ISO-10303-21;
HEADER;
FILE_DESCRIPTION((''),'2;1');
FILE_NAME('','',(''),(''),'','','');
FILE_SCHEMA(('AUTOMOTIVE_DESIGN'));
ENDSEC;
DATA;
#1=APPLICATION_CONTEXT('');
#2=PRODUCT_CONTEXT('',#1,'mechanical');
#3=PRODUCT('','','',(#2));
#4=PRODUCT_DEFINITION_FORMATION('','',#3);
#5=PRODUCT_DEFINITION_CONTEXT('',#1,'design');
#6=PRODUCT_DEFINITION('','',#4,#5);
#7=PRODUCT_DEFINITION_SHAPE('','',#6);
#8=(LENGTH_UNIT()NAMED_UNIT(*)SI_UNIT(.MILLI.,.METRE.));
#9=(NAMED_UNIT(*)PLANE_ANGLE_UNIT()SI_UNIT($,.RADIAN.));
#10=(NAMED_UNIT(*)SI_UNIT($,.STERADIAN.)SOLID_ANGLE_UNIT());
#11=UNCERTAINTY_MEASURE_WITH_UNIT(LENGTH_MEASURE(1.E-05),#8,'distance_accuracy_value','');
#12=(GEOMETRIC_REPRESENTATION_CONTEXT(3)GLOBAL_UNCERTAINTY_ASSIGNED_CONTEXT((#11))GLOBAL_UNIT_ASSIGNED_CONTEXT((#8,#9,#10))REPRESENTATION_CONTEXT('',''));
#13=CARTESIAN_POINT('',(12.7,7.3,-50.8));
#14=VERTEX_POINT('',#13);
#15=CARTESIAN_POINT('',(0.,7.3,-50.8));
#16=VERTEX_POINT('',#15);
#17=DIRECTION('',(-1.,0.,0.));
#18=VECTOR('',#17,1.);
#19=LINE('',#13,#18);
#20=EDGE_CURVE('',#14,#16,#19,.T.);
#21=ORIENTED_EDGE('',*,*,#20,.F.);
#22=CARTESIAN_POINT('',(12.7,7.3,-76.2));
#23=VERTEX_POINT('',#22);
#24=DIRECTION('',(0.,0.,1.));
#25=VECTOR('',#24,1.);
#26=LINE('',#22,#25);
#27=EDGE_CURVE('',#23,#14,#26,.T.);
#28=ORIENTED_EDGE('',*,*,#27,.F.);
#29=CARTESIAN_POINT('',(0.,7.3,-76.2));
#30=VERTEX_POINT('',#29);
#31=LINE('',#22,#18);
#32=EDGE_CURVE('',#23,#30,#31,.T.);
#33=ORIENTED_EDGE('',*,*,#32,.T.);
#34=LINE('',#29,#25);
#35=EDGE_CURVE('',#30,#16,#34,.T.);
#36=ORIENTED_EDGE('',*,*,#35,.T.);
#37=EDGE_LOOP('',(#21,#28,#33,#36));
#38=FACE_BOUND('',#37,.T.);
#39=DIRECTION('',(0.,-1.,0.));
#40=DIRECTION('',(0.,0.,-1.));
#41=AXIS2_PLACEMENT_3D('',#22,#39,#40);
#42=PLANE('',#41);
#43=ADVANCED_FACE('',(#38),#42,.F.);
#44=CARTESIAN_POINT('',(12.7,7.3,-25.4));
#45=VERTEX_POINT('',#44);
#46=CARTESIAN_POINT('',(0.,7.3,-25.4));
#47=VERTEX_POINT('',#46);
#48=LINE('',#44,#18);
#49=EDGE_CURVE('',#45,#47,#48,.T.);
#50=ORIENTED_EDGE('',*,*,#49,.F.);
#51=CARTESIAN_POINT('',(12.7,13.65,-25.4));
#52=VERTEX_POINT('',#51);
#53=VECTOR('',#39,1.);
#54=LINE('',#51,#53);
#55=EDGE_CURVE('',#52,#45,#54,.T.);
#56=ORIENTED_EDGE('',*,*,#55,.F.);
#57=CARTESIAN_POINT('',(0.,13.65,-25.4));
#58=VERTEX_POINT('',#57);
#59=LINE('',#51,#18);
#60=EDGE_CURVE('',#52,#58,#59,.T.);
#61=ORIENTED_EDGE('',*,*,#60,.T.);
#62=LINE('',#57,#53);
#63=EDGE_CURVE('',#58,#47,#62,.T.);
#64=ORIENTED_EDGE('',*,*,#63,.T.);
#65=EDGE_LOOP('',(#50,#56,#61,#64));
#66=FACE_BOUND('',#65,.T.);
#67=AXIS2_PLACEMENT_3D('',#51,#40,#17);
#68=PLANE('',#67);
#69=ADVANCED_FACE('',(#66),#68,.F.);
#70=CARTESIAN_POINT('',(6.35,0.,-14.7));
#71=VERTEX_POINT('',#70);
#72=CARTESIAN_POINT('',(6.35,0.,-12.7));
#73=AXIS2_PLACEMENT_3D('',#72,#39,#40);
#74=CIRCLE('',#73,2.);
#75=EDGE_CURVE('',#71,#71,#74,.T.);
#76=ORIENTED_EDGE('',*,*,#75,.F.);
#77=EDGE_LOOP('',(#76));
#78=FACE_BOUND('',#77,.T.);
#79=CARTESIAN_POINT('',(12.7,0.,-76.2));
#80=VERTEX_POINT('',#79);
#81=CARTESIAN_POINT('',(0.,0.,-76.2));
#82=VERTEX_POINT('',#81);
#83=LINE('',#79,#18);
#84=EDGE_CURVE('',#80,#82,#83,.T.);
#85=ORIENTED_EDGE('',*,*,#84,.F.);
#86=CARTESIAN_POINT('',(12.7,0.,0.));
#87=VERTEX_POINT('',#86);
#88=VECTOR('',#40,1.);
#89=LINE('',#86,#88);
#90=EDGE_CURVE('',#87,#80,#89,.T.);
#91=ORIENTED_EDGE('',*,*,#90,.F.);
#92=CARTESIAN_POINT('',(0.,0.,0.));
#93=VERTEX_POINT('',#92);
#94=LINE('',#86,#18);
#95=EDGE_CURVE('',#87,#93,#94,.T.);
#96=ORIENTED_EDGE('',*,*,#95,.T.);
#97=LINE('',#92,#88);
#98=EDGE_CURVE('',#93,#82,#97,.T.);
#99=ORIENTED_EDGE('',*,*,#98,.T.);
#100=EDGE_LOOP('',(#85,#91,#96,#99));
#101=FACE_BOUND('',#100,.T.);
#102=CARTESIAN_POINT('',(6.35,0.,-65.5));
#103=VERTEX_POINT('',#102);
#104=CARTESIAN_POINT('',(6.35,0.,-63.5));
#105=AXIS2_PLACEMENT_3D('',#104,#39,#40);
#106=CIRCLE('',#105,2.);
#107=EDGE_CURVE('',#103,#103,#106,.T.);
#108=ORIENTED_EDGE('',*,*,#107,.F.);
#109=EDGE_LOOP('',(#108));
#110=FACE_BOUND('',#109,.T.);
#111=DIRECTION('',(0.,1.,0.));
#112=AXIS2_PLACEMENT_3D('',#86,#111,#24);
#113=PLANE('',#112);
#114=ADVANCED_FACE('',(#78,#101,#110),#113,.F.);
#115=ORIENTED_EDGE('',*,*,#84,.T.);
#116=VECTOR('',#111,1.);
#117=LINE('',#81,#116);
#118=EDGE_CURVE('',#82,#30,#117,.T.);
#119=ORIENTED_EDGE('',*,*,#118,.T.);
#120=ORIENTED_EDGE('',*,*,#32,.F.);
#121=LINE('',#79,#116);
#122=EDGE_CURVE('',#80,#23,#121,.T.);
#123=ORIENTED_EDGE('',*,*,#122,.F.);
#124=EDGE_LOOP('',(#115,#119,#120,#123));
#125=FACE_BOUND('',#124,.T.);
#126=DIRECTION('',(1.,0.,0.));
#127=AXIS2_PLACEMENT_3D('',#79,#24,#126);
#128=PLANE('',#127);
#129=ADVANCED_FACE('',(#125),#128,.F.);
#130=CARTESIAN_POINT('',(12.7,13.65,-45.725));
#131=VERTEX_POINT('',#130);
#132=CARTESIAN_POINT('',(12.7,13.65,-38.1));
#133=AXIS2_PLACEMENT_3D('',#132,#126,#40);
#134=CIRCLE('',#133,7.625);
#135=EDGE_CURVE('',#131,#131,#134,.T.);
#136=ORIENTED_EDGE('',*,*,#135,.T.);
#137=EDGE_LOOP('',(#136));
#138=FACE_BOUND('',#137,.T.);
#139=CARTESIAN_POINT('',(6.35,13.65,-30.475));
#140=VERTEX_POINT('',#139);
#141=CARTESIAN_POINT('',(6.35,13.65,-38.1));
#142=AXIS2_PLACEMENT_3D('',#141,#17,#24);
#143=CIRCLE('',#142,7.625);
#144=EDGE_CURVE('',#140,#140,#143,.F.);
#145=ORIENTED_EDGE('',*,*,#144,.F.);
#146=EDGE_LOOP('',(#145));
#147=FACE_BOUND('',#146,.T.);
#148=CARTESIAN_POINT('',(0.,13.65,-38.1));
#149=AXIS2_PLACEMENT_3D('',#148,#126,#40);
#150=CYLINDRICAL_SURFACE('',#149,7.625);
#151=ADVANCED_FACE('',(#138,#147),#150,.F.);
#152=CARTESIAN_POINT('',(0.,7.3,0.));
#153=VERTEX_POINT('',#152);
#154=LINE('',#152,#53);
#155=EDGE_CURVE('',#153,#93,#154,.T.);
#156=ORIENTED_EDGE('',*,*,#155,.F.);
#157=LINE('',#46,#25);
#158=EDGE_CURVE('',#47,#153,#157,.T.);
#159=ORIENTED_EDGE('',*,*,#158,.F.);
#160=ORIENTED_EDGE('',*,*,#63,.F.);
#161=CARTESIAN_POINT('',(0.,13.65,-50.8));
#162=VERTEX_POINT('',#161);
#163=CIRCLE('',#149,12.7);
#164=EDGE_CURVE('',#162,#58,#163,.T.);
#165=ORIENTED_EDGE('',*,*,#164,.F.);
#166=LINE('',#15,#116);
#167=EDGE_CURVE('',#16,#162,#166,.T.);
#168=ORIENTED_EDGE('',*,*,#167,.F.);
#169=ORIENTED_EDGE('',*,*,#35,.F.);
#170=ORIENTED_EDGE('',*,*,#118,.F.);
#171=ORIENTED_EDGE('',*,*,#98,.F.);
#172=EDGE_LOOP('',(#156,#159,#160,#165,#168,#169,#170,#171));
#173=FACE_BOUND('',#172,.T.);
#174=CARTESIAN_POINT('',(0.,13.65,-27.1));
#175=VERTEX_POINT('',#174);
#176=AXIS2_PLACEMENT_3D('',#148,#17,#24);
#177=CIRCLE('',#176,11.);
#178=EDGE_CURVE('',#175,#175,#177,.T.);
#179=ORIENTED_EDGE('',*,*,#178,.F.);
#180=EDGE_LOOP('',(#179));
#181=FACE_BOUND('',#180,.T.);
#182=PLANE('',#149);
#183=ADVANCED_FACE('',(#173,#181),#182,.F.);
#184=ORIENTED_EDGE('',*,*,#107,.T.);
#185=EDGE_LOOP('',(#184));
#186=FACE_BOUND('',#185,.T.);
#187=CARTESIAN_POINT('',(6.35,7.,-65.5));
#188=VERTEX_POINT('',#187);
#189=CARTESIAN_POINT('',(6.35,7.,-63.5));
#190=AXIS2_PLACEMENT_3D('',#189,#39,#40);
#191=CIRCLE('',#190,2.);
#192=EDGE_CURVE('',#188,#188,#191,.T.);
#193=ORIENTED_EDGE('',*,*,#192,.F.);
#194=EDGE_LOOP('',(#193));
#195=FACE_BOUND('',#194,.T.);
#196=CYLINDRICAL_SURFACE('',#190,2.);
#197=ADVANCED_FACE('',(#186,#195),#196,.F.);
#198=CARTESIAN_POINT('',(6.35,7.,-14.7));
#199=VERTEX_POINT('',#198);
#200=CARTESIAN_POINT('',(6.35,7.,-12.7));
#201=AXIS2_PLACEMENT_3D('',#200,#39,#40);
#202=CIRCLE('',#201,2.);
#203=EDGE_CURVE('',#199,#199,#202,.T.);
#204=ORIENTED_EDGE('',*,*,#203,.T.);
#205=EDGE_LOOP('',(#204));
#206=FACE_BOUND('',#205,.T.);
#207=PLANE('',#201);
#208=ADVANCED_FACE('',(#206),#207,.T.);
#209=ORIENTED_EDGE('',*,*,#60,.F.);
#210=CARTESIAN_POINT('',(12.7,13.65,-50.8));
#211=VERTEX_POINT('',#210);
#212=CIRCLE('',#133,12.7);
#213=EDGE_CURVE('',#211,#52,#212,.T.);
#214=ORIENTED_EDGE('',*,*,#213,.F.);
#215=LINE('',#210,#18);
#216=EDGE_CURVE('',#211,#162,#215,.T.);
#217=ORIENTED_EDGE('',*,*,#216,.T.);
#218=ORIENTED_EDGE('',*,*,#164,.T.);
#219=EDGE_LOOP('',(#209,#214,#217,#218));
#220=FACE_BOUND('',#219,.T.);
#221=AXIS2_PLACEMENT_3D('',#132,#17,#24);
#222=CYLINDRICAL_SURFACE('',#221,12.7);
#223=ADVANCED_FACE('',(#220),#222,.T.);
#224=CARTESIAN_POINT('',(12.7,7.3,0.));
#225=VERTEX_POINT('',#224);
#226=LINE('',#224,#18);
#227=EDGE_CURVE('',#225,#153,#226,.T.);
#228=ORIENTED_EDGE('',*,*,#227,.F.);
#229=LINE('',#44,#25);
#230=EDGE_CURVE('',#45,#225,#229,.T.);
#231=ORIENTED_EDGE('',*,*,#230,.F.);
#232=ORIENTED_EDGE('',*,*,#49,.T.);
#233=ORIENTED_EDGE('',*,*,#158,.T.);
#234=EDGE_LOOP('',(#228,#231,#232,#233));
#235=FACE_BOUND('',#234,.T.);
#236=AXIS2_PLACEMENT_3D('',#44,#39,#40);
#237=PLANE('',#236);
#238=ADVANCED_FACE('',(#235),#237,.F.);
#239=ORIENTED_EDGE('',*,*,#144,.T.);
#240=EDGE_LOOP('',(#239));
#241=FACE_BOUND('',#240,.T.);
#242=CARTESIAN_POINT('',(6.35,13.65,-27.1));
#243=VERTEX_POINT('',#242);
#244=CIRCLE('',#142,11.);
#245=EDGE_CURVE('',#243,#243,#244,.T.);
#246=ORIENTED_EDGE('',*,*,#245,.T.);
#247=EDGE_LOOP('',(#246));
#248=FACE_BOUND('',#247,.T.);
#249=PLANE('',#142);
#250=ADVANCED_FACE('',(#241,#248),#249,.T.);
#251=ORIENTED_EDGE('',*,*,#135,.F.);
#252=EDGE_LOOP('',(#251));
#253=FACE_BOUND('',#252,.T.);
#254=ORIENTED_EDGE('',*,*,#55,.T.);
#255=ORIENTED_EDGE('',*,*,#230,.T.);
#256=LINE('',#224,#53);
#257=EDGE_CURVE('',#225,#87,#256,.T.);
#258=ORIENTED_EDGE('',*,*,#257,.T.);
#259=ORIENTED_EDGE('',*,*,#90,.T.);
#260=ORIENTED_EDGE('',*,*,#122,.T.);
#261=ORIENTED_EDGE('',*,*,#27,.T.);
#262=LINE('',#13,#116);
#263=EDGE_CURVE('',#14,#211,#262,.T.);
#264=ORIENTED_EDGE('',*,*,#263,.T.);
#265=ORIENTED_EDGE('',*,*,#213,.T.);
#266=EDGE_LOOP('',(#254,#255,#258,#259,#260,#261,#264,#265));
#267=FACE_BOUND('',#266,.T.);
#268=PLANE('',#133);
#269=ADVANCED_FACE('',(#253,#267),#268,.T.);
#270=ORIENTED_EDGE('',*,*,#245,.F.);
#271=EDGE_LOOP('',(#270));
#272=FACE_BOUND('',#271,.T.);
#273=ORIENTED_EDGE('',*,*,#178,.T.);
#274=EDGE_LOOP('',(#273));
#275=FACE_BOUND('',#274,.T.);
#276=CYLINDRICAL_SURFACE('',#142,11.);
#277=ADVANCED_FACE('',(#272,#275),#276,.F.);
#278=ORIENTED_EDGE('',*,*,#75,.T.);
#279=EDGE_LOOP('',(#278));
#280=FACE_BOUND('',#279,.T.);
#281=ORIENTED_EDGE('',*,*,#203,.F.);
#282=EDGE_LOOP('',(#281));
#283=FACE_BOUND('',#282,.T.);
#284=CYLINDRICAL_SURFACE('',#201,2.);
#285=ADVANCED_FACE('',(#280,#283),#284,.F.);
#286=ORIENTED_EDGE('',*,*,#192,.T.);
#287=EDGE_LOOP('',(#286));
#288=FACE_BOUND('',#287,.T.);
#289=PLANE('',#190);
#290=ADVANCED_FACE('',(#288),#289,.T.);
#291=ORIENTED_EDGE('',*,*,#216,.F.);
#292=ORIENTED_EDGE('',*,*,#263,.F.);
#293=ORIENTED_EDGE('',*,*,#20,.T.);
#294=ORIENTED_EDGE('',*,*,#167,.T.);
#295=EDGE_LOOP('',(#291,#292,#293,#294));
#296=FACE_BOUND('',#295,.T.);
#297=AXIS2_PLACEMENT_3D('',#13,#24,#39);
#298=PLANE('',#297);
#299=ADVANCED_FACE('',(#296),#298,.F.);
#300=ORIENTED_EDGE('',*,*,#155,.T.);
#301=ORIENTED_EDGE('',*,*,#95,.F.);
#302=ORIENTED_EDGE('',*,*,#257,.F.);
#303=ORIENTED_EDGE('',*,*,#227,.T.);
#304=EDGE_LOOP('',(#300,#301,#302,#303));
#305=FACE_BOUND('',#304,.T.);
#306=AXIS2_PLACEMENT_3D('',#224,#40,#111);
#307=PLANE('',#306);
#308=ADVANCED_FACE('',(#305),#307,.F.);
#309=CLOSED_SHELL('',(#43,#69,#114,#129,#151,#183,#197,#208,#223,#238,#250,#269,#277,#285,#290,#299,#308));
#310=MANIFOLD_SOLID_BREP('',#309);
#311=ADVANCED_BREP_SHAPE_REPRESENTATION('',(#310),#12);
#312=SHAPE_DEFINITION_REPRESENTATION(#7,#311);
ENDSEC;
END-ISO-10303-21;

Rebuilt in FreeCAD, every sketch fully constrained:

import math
import FreeCAD as App
import Part
import Sketcher

doc = App.newDocument("Part")
body = doc.addObject("PartDesign::Body", "Body")

sketch1 = body.newObject("Sketcher::SketchObject", "Sketch")
sketch1.AttachmentSupport = (doc.getObject("YZ_Plane"), [""])
sketch1.MapMode = "FlatFace"
sketch1.addGeometry(Part.LineSegment(App.Vector(0, 0, 0), App.Vector(0, -76, 0)), False)
sketch1.addGeometry(Part.LineSegment(App.Vector(0, -76, 0), App.Vector(7, -76, 0)), False)
sketch1.addGeometry(Part.LineSegment(App.Vector(7, -76, 0), App.Vector(7, -51, 0)), False)
sketch1.addGeometry(Part.LineSegment(App.Vector(7, -51, 0), App.Vector(14, -51, 0)), False)
sketch1.addGeometry(Part.ArcOfCircle(Part.Circle(App.Vector(14, -38, 0), App.Vector(0, 0, 1), 13), math.radians(-90), math.radians(90)), False)
sketch1.addGeometry(Part.LineSegment(App.Vector(14, -25, 0), App.Vector(7, -25, 0)), False)
sketch1.addGeometry(Part.LineSegment(App.Vector(7, -25, 0), App.Vector(7, 0, 0)), False)
sketch1.addGeometry(Part.LineSegment(App.Vector(7, 0, 0), App.Vector(0, 0, 0)), False)
sketch1.addConstraint(Sketcher.Constraint("Coincident", 0, 2, 1, 1))
sketch1.addConstraint(Sketcher.Constraint("Coincident", 1, 2, 2, 1))
sketch1.addConstraint(Sketcher.Constraint("Coincident", 2, 2, 3, 1))
sketch1.addConstraint(Sketcher.Constraint("Tangent", 3, 2, 4, 1))
sketch1.addConstraint(Sketcher.Constraint("Tangent", 4, 2, 5, 1))
sketch1.addConstraint(Sketcher.Constraint("Coincident", 5, 2, 6, 1))
sketch1.addConstraint(Sketcher.Constraint("Coincident", 6, 2, 7, 1))
sketch1.addConstraint(Sketcher.Constraint("Coincident", 7, 2, 0, 1))
sketch1.addConstraint(Sketcher.Constraint("Vertical", 0))
sketch1.addConstraint(Sketcher.Constraint("Horizontal", 1))
sketch1.addConstraint(Sketcher.Constraint("Vertical", 2))
sketch1.addConstraint(Sketcher.Constraint("Horizontal", 3))
sketch1.addConstraint(Sketcher.Constraint("Horizontal", 5))
sketch1.addConstraint(Sketcher.Constraint("Vertical", 6))
sketch1.addConstraint(Sketcher.Constraint("Horizontal", 7))
sketch1.addConstraint(Sketcher.Constraint("Coincident", 7, 2, -1, 1))
sketch1.addConstraint(Sketcher.Constraint("Vertical", 2, 2, 5, 2))
sketch1.addConstraint(Sketcher.Constraint("Equal", 2, 6))
sketch1.addConstraint(Sketcher.Constraint("Radius", 4, 12.7))
sketch1.addConstraint(Sketcher.Constraint("DistanceX", 1, 1, 1, 2, 7.3))
sketch1.addConstraint(Sketcher.Constraint("DistanceY", 0, 2, 0, 1, 76.2))
sketch1.addConstraint(Sketcher.Constraint("DistanceX", 3, 1, 3, 2, 6.35))
pad1 = body.newObject("PartDesign::Pad", "Pad")
pad1.Profile = sketch1
pad1.Length = 12.7

sketch2 = body.newObject("Sketcher::SketchObject", "Sketch001")
sketch2.AttachmentSupport = (doc.getObject("YZ_Plane"), [""])
sketch2.MapMode = "FlatFace"
sketch2.AttachmentOffset = App.Placement(App.Vector(0, 0, 12.7), App.Rotation())
sketch2.addGeometry(Part.Circle(App.Vector(14, -38, 0), App.Vector(0, 0, 1), 8), False)
sketch2.addConstraint(Sketcher.Constraint("Diameter", 0, 15.25))
sketch2.addConstraint(Sketcher.Constraint("DistanceY", 0, 3, -1, 1, 38.1))
sketch2.addConstraint(Sketcher.Constraint("DistanceX", -1, 1, 0, 3, 13.65))
pocket1 = body.newObject("PartDesign::Pocket", "Pocket")
pocket1.Profile = sketch2
pocket1.Type = "ThroughAll"

sketch3 = body.newObject("Sketcher::SketchObject", "Sketch002")
sketch3.AttachmentSupport = (doc.getObject("XZ_Plane"), [""])
sketch3.MapMode = "FlatFace"
sketch3.addGeometry(Part.Circle(App.Vector(6.3, -12.7, 0), App.Vector(0, 0, 1), 2), False)
sketch3.addGeometry(Part.Circle(App.Vector(6.3, -63.5, 0), App.Vector(0, 0, 1), 2), False)
sketch3.addConstraint(Sketcher.Constraint("Equal", 0, 1))
sketch3.addConstraint(Sketcher.Constraint("Vertical", 0, 3, 1, 3))
sketch3.addConstraint(Sketcher.Constraint("Diameter", 0, 4.0))
sketch3.addConstraint(Sketcher.Constraint("DistanceY", 0, 3, -1, 1, 12.7))
sketch3.addConstraint(Sketcher.Constraint("DistanceY", 1, 3, -1, 1, 63.5))
sketch3.addConstraint(Sketcher.Constraint("DistanceX", -1, 1, 0, 3, 6.35))
pocket2 = body.newObject("PartDesign::Pocket", "Pocket001")
pocket2.Profile = sketch3
pocket2.Length = 7

sketch4 = body.newObject("Sketcher::SketchObject", "Sketch003")
sketch4.AttachmentSupport = (doc.getObject("YZ_Plane"), [""])
sketch4.MapMode = "FlatFace"
sketch4.addGeometry(Part.Circle(App.Vector(14, -38, 0), App.Vector(0, 0, 1), 11), False)
sketch4.addConstraint(Sketcher.Constraint("Diameter", 0, 22.0))
sketch4.addConstraint(Sketcher.Constraint("DistanceY", 0, 3, -1, 1, 38.1))
sketch4.addConstraint(Sketcher.Constraint("DistanceX", -1, 1, 0, 3, 13.65))
pocket3 = body.newObject("PartDesign::Pocket", "Pocket002")
pocket3.Profile = sketch4
pocket3.Length = 6.35
pocket3.Reversed = True

doc.recompute()
